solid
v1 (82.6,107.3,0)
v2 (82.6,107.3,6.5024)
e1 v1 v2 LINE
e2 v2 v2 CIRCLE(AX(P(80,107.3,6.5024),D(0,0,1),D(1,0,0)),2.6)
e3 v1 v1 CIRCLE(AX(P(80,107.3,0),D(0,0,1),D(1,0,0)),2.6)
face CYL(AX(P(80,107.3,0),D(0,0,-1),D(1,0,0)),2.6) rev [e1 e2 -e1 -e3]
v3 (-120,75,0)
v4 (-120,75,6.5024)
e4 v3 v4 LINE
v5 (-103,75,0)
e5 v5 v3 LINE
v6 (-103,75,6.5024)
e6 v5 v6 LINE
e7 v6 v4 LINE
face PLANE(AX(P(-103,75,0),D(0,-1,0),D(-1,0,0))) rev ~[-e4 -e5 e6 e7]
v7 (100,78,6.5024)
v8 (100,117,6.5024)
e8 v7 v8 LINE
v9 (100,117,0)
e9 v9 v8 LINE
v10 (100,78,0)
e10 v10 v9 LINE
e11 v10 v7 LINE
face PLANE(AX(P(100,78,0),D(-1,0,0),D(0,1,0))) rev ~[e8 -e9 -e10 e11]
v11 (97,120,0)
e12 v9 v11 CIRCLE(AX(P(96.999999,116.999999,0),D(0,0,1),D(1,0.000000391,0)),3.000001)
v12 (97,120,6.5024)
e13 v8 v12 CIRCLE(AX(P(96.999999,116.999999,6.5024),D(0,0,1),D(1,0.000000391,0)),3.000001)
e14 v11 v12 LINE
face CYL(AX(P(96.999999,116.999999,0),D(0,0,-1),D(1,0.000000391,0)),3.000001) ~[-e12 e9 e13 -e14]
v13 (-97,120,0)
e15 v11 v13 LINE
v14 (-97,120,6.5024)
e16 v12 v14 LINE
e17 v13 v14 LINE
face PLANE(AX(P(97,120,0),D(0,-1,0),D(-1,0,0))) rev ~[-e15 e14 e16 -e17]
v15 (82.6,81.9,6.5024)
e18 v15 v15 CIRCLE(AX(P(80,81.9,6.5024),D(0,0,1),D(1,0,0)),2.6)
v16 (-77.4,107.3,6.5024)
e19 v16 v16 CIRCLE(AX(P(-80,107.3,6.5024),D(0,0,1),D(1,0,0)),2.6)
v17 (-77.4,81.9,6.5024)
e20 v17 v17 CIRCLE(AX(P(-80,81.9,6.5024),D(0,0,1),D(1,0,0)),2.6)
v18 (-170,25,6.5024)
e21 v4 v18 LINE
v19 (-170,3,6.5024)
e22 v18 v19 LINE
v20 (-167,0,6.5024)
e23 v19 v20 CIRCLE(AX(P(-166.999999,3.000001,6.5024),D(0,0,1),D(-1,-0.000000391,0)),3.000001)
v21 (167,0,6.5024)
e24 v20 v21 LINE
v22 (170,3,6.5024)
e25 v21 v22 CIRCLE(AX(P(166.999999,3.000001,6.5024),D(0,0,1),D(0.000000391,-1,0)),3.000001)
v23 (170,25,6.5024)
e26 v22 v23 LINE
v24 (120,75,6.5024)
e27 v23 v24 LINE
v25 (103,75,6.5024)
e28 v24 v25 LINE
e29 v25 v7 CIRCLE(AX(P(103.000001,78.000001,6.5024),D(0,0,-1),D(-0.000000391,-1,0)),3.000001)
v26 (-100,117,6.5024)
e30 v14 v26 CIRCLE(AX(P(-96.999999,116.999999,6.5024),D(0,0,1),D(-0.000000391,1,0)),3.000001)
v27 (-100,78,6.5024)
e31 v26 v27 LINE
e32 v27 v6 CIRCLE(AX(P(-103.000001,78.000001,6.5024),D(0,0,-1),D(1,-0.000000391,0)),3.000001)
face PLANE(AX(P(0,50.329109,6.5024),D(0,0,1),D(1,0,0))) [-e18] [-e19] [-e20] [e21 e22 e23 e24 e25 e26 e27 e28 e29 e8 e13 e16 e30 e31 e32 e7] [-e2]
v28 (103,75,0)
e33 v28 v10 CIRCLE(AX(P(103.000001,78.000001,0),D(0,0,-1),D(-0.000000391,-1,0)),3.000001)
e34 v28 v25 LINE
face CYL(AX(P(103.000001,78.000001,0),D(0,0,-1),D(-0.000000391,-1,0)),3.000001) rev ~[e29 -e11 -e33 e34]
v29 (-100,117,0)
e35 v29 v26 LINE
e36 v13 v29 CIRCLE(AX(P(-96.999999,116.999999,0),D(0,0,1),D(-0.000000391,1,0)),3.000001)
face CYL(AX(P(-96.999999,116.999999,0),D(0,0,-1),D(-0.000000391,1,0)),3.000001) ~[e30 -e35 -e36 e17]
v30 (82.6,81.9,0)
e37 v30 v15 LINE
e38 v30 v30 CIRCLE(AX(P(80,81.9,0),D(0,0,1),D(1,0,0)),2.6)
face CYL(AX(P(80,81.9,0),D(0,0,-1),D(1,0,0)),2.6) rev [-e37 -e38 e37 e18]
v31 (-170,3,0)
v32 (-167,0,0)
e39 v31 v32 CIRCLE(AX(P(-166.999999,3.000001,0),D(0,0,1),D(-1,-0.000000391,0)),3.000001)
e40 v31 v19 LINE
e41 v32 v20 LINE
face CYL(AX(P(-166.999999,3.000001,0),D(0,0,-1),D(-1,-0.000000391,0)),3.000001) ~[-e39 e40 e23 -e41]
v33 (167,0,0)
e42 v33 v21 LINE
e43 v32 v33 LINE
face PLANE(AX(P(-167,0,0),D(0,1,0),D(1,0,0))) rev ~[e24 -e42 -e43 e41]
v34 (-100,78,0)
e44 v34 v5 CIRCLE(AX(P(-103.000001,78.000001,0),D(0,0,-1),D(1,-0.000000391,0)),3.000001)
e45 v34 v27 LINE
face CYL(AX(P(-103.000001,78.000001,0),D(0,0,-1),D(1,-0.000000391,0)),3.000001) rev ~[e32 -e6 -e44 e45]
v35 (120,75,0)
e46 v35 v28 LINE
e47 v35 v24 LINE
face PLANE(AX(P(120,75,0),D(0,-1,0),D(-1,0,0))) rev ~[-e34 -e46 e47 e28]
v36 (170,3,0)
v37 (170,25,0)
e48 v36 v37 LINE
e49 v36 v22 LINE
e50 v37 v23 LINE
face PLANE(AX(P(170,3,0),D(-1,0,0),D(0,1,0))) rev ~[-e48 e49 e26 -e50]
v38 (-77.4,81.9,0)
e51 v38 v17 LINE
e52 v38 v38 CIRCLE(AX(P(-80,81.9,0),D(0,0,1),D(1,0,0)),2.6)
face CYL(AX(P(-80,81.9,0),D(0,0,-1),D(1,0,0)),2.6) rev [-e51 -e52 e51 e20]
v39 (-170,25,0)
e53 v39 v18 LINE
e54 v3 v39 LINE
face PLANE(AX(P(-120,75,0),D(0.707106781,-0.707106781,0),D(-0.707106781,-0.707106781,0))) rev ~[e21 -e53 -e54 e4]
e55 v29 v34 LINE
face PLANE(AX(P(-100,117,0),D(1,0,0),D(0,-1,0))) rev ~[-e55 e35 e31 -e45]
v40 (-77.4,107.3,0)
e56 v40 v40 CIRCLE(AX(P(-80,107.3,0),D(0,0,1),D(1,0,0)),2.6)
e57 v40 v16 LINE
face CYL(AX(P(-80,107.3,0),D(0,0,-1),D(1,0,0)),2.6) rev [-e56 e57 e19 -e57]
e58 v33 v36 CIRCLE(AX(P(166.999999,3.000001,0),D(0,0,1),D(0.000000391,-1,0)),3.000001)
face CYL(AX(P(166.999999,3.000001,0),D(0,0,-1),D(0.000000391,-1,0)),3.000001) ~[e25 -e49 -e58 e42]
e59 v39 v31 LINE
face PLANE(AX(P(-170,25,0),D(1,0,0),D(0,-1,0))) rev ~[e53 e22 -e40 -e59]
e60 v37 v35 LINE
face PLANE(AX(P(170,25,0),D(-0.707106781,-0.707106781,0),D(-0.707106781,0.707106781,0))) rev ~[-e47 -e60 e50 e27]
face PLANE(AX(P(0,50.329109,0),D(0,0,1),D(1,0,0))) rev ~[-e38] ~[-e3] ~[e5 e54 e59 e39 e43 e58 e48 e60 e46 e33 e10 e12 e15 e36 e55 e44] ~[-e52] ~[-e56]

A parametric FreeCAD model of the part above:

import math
import FreeCAD as App
import Part
import Sketcher
from FreeCAD import Vector

doc = App.newDocument("Part")
body = doc.addObject("PartDesign::Body", "Body")

sketch1 = body.newObject("Sketcher::SketchObject", "Sketch")
sketch1.AttachmentSupport = (doc.getObject("XY_Plane"), [""])
sketch1.MapMode = "FlatFace"
sketch1.addGeometry([
    Part.LineSegment(Vector(-103, 75, 0), Vector(-120, 75, 0)),
    Part.LineSegment(Vector(-120, 75, 0), Vector(-170, 25, 0)),
    Part.LineSegment(Vector(-170, 25, 0), Vector(-170, 3, 0)),
    Part.ArcOfCircle(Part.Circle(Vector(-167, 3, 0), Vector(0, 0, 1), 3), math.radians(-180), math.radians(-90)),
    Part.LineSegment(Vector(-167, 0, 0), Vector(167, 0, 0)),
    Part.ArcOfCircle(Part.Circle(Vector(167, 3, 0), Vector(0, 0, 1), 3), math.radians(-90), math.radians(0)),
    Part.LineSegment(Vector(170, 3, 0), Vector(170, 25, 0)),
    Part.LineSegment(Vector(170, 25, 0), Vector(120, 75, 0)),
    Part.LineSegment(Vector(120, 75, 0), Vector(103, 75, 0)),
    Part.ArcOfCircle(Part.Circle(Vector(103, 78, 0), Vector(0, 0, 1), 3), math.radians(-180), math.radians(-90)),
    Part.LineSegment(Vector(100, 78, 0), Vector(100, 117, 0)),
    Part.ArcOfCircle(Part.Circle(Vector(97, 117, 0), Vector(0, 0, 1), 3), math.radians(0), math.radians(90)),
    Part.LineSegment(Vector(97, 120, 0), Vector(-97, 120, 0)),
    Part.ArcOfCircle(Part.Circle(Vector(-97, 117, 0), Vector(0, 0, 1), 3), math.radians(90), math.radians(180)),
    Part.LineSegment(Vector(-100, 117, 0), Vector(-100, 78, 0)),
    Part.ArcOfCircle(Part.Circle(Vector(-103, 78, 0), Vector(0, 0, 1), 3), math.radians(-90), math.radians(0)),
    Part.Circle(Vector(-80, 81.9, 0), Vector(0, 0, 1), 2.6),
    Part.Circle(Vector(80, 81.9, 0), Vector(0, 0, 1), 2.6),
    Part.Circle(Vector(-80, 107.3, 0), Vector(0, 0, 1), 2.6),
    Part.Circle(Vector(80, 107.3, 0), Vector(0, 0, 1), 2.6),
], False)
sketch1.addConstraint([
    Sketcher.Constraint("Coincident", 0, 2, 1, 1),
    Sketcher.Constraint("Coincident", 1, 2, 2, 1),
    Sketcher.Constraint("Tangent", 2, 2, 3, 1),
    Sketcher.Constraint("Tangent", 3, 2, 4, 1),
    Sketcher.Constraint("Tangent", 4, 2, 5, 1),
    Sketcher.Constraint("Tangent", 5, 2, 6, 1),
    Sketcher.Constraint("Coincident", 6, 2, 7, 1),
    Sketcher.Constraint("Coincident", 7, 2, 8, 1),
    Sketcher.Constraint("Tangent", 8, 2, 9, 2),
    Sketcher.Constraint("Tangent", 9, 1, 10, 1),
    Sketcher.Constraint("Tangent", 10, 2, 11, 1),
    Sketcher.Constraint("Tangent", 11, 2, 12, 1),
    Sketcher.Constraint("Tangent", 12, 2, 13, 1),
    Sketcher.Constraint("Tangent", 13, 2, 14, 1),
    Sketcher.Constraint("Tangent", 14, 2, 15, 2),
    Sketcher.Constraint("Tangent", 15, 1, 0, 1),
    Sketcher.Constraint("Horizontal", 0),
    Sketcher.Constraint("Vertical", 2),
    Sketcher.Constraint("Horizontal", 4),
    Sketcher.Constraint("Vertical", 6),
    Sketcher.Constraint("Horizontal", 8),
    Sketcher.Constraint("Vertical", 10),
    Sketcher.Constraint("Horizontal", 12),
    Sketcher.Constraint("Vertical", 14),
    Sketcher.Constraint("Equal", 3, 5),
    Sketcher.Constraint("Equal", 5, 9),
    Sketcher.Constraint("Equal", 9, 11),
    Sketcher.Constraint("Equal", 11, 13),
    Sketcher.Constraint("Equal", 13, 15),
    Sketcher.Constraint("Equal", 16, 17),
    Sketcher.Constraint("Equal", 17, 18),
    Sketcher.Constraint("Equal", 18, 19),
    Sketcher.Constraint("Symmetric", 3, 2, 4, 2, -1, 1),
    Sketcher.Constraint("Symmetric", 9, 3, 15, 3, -2),
    Sketcher.Constraint("Symmetric", 16, 3, 17, 3, -2),
    Sketcher.Constraint("Symmetric", 18, 3, 19, 3, -2),
    Sketcher.Constraint("Perpendicular", 1, 7),
    Sketcher.Constraint("Horizontal", 1, 2, 6, 2),
    Sketcher.Constraint("Vertical", 16, 3, 18, 3),
    Sketcher.Constraint("Equal", 0, 8),
    Sketcher.Constraint("Radius", 3, 3.000001),
    Sketcher.Constraint("Diameter", 16, 5.2),
    Sketcher.Constraint("DistanceX", 0, 2, 0, 1, 17.0),
    Sketcher.Constraint("DistanceX", 4, 1, 4, 2, 334.0),
    Sketcher.Constraint("DistanceX", 12, 2, 12, 1, 194.0),
    Sketcher.Constraint("DistanceY", 2, 2, 2, 1, 22.0),
    Sketcher.Constraint("DistanceY", 10, 1, 10, 2, 39.0),
    Sketcher.Constraint("DistanceX", 16, 3, -1, 1, 80.0),
    Sketcher.Constraint("DistanceY", -1, 1, 16, 3, 81.9),
    Sketcher.Constraint("DistanceY", -1, 1, 18, 3, 107.3),
])
pad1 = body.newObject("PartDesign::Pad", "Pad")
pad1.Profile = sketch1
pad1.Length = 6.5024

doc.recompute()
